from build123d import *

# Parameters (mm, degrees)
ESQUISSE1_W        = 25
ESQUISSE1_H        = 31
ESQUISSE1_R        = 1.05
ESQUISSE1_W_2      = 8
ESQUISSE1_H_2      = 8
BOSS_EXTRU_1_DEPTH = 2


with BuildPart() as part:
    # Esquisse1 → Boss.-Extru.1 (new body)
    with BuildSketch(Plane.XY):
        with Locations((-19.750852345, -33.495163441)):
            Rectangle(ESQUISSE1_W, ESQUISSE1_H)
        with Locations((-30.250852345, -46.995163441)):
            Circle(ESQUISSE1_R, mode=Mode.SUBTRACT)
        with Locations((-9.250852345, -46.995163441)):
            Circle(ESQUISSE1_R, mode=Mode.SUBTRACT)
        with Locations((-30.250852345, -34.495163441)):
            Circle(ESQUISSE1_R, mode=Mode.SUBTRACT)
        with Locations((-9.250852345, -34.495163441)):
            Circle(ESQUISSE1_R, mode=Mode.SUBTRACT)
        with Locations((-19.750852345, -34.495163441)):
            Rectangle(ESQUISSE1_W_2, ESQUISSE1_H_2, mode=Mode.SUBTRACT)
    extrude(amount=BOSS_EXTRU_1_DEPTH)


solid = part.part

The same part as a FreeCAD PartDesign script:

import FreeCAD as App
import Part
import Sketcher
from FreeCAD import Vector

doc = App.newDocument("Part")
body = doc.addObject("PartDesign::Body", "Body")

# Sketch on XY plane
sketch1 = body.newObject("Sketcher::SketchObject", "Sketch")
sketch1.AttachmentSupport = (doc.getObject("XY_Plane"), [""])
sketch1.MapMode = "FlatFace"
sketch1.addGeometry(Part.LineSegment(Vector(-32.3, -18, 0), Vector(-32.3, -49, 0)), False)
sketch1.addGeometry(Part.LineSegment(Vector(-32.3, -49, 0), Vector(-7.3, -49, 0)), False)
sketch1.addGeometry(Part.LineSegment(Vector(-7.3, -49, 0), Vector(-7.3, -18, 0)), False)
sketch1.addGeometry(Part.LineSegment(Vector(-7.3, -18, 0), Vector(-32.3, -18, 0)), False)
sketch1.addGeometry(Part.Circle(Vector(-30.3, -47, 0), Vector(0, 0, 1), 1.1), False)
sketch1.addGeometry(Part.Circle(Vector(-9.3, -47, 0), Vector(0, 0, 1), 1.1), False)
sketch1.addGeometry(Part.Circle(Vector(-30.3, -34.5, 0), Vector(0, 0, 1), 1.1), False)
sketch1.addGeometry(Part.LineSegment(Vector(-15.8, -38.5, 0), Vector(-23.8, -38.5, 0)), False)
sketch1.addGeometry(Part.LineSegment(Vector(-23.8, -38.5, 0), Vector(-23.8, -30.5, 0)), False)
sketch1.addGeometry(Part.LineSegment(Vector(-23.8, -30.5, 0), Vector(-15.8, -30.5, 0)), False)
sketch1.addGeometry(Part.LineSegment(Vector(-15.8, -30.5, 0), Vector(-15.8, -38.5, 0)), False)
sketch1.addGeometry(Part.Circle(Vector(-9.3, -34.5, 0), Vector(0, 0, 1), 1.1), False)
sketch1.addConstraint(Sketcher.Constraint("Coincident", 0, 2, 1, 1))
sketch1.addConstraint(Sketcher.Constraint("Coincident", 1, 2, 2, 1))
sketch1.addConstraint(Sketcher.Constraint("Coincident", 2, 2, 3, 1))
sketch1.addConstraint(Sketcher.Constraint("Coincident", 3, 2, 0, 1))
sketch1.addConstraint(Sketcher.Constraint("Coincident", 7, 2, 8, 1))
sketch1.addConstraint(Sketcher.Constraint("Coincident", 8, 2, 9, 1))
sketch1.addConstraint(Sketcher.Constraint("Coincident", 9, 2, 10, 1))
sketch1.addConstraint(Sketcher.Constraint("Coincident", 10, 2, 7, 1))
sketch1.addConstraint(Sketcher.Constraint("Vertical", 0))
sketch1.addConstraint(Sketcher.Constraint("Horizontal", 1))
sketch1.addConstraint(Sketcher.Constraint("Vertical", 2))
sketch1.addConstraint(Sketcher.Constraint("Horizontal", 3))
sketch1.addConstraint(Sketcher.Constraint("Horizontal", 7))
sketch1.addConstraint(Sketcher.Constraint("Vertical", 8))
sketch1.addConstraint(Sketcher.Constraint("Horizontal", 9))
sketch1.addConstraint(Sketcher.Constraint("Vertical", 10))
sketch1.addConstraint(Sketcher.Constraint("Equal", 4, 5))
sketch1.addConstraint(Sketcher.Constraint("Equal", 5, 6))
sketch1.addConstraint(Sketcher.Constraint("Equal", 6, 11))
sketch1.addConstraint(Sketcher.Constraint("Horizontal", 4, 3, 5, 3))
sketch1.addConstraint(Sketcher.Constraint("Horizontal", 6, 3, 11, 3))
sketch1.addConstraint(Sketcher.Constraint("Vertical", 4, 3, 6, 3))
sketch1.addConstraint(Sketcher.Constraint("Vertical", 5, 3, 11, 3))
sketch1.addConstraint(Sketcher.Constraint("Equal", 9, 8))
sketch1.addConstraint(Sketcher.Constraint("Diameter", 4, 2.1))
sketch1.addConstraint(Sketcher.Constraint("DistanceX", 1, 1, 1, 2, 25.0))
sketch1.addConstraint(Sketcher.Constraint("DistanceX", 7, 2, 7, 1, 8.0))
sketch1.addConstraint(Sketcher.Constraint("DistanceY", 0, 2, 0, 1, 31.0))
sketch1.addConstraint(Sketcher.Constraint("DistanceX", 4, 3, 5, 3, 21.0))
sketch1.addConstraint(Sketcher.Constraint("DistanceX", 0, 2, 4, 3, 2.0))
sketch1.addConstraint(Sketcher.Constraint("DistanceY", 0, 2, 4, 3, 2.0))
sketch1.addConstraint(Sketcher.Constraint("DistanceY", 7, 2, 6, 3, 4.0))
sketch1.addConstraint(Sketcher.Constraint("DistanceY", 4, 3, 6, 3, 12.5))
sketch1.addConstraint(Sketcher.Constraint("DistanceX", 6, 3, 7, 2, 6.5))
sketch1.addConstraint(Sketcher.Constraint("DistanceX", 4, 3, -1, 1, 30.250852))
sketch1.addConstraint(Sketcher.Constraint("DistanceY", 4, 3, -1, 1, 46.995163))
pad1 = body.newObject("PartDesign::Pad", "Pad")
pad1.Profile = sketch1
pad1.Length = 2

doc.recompute()
